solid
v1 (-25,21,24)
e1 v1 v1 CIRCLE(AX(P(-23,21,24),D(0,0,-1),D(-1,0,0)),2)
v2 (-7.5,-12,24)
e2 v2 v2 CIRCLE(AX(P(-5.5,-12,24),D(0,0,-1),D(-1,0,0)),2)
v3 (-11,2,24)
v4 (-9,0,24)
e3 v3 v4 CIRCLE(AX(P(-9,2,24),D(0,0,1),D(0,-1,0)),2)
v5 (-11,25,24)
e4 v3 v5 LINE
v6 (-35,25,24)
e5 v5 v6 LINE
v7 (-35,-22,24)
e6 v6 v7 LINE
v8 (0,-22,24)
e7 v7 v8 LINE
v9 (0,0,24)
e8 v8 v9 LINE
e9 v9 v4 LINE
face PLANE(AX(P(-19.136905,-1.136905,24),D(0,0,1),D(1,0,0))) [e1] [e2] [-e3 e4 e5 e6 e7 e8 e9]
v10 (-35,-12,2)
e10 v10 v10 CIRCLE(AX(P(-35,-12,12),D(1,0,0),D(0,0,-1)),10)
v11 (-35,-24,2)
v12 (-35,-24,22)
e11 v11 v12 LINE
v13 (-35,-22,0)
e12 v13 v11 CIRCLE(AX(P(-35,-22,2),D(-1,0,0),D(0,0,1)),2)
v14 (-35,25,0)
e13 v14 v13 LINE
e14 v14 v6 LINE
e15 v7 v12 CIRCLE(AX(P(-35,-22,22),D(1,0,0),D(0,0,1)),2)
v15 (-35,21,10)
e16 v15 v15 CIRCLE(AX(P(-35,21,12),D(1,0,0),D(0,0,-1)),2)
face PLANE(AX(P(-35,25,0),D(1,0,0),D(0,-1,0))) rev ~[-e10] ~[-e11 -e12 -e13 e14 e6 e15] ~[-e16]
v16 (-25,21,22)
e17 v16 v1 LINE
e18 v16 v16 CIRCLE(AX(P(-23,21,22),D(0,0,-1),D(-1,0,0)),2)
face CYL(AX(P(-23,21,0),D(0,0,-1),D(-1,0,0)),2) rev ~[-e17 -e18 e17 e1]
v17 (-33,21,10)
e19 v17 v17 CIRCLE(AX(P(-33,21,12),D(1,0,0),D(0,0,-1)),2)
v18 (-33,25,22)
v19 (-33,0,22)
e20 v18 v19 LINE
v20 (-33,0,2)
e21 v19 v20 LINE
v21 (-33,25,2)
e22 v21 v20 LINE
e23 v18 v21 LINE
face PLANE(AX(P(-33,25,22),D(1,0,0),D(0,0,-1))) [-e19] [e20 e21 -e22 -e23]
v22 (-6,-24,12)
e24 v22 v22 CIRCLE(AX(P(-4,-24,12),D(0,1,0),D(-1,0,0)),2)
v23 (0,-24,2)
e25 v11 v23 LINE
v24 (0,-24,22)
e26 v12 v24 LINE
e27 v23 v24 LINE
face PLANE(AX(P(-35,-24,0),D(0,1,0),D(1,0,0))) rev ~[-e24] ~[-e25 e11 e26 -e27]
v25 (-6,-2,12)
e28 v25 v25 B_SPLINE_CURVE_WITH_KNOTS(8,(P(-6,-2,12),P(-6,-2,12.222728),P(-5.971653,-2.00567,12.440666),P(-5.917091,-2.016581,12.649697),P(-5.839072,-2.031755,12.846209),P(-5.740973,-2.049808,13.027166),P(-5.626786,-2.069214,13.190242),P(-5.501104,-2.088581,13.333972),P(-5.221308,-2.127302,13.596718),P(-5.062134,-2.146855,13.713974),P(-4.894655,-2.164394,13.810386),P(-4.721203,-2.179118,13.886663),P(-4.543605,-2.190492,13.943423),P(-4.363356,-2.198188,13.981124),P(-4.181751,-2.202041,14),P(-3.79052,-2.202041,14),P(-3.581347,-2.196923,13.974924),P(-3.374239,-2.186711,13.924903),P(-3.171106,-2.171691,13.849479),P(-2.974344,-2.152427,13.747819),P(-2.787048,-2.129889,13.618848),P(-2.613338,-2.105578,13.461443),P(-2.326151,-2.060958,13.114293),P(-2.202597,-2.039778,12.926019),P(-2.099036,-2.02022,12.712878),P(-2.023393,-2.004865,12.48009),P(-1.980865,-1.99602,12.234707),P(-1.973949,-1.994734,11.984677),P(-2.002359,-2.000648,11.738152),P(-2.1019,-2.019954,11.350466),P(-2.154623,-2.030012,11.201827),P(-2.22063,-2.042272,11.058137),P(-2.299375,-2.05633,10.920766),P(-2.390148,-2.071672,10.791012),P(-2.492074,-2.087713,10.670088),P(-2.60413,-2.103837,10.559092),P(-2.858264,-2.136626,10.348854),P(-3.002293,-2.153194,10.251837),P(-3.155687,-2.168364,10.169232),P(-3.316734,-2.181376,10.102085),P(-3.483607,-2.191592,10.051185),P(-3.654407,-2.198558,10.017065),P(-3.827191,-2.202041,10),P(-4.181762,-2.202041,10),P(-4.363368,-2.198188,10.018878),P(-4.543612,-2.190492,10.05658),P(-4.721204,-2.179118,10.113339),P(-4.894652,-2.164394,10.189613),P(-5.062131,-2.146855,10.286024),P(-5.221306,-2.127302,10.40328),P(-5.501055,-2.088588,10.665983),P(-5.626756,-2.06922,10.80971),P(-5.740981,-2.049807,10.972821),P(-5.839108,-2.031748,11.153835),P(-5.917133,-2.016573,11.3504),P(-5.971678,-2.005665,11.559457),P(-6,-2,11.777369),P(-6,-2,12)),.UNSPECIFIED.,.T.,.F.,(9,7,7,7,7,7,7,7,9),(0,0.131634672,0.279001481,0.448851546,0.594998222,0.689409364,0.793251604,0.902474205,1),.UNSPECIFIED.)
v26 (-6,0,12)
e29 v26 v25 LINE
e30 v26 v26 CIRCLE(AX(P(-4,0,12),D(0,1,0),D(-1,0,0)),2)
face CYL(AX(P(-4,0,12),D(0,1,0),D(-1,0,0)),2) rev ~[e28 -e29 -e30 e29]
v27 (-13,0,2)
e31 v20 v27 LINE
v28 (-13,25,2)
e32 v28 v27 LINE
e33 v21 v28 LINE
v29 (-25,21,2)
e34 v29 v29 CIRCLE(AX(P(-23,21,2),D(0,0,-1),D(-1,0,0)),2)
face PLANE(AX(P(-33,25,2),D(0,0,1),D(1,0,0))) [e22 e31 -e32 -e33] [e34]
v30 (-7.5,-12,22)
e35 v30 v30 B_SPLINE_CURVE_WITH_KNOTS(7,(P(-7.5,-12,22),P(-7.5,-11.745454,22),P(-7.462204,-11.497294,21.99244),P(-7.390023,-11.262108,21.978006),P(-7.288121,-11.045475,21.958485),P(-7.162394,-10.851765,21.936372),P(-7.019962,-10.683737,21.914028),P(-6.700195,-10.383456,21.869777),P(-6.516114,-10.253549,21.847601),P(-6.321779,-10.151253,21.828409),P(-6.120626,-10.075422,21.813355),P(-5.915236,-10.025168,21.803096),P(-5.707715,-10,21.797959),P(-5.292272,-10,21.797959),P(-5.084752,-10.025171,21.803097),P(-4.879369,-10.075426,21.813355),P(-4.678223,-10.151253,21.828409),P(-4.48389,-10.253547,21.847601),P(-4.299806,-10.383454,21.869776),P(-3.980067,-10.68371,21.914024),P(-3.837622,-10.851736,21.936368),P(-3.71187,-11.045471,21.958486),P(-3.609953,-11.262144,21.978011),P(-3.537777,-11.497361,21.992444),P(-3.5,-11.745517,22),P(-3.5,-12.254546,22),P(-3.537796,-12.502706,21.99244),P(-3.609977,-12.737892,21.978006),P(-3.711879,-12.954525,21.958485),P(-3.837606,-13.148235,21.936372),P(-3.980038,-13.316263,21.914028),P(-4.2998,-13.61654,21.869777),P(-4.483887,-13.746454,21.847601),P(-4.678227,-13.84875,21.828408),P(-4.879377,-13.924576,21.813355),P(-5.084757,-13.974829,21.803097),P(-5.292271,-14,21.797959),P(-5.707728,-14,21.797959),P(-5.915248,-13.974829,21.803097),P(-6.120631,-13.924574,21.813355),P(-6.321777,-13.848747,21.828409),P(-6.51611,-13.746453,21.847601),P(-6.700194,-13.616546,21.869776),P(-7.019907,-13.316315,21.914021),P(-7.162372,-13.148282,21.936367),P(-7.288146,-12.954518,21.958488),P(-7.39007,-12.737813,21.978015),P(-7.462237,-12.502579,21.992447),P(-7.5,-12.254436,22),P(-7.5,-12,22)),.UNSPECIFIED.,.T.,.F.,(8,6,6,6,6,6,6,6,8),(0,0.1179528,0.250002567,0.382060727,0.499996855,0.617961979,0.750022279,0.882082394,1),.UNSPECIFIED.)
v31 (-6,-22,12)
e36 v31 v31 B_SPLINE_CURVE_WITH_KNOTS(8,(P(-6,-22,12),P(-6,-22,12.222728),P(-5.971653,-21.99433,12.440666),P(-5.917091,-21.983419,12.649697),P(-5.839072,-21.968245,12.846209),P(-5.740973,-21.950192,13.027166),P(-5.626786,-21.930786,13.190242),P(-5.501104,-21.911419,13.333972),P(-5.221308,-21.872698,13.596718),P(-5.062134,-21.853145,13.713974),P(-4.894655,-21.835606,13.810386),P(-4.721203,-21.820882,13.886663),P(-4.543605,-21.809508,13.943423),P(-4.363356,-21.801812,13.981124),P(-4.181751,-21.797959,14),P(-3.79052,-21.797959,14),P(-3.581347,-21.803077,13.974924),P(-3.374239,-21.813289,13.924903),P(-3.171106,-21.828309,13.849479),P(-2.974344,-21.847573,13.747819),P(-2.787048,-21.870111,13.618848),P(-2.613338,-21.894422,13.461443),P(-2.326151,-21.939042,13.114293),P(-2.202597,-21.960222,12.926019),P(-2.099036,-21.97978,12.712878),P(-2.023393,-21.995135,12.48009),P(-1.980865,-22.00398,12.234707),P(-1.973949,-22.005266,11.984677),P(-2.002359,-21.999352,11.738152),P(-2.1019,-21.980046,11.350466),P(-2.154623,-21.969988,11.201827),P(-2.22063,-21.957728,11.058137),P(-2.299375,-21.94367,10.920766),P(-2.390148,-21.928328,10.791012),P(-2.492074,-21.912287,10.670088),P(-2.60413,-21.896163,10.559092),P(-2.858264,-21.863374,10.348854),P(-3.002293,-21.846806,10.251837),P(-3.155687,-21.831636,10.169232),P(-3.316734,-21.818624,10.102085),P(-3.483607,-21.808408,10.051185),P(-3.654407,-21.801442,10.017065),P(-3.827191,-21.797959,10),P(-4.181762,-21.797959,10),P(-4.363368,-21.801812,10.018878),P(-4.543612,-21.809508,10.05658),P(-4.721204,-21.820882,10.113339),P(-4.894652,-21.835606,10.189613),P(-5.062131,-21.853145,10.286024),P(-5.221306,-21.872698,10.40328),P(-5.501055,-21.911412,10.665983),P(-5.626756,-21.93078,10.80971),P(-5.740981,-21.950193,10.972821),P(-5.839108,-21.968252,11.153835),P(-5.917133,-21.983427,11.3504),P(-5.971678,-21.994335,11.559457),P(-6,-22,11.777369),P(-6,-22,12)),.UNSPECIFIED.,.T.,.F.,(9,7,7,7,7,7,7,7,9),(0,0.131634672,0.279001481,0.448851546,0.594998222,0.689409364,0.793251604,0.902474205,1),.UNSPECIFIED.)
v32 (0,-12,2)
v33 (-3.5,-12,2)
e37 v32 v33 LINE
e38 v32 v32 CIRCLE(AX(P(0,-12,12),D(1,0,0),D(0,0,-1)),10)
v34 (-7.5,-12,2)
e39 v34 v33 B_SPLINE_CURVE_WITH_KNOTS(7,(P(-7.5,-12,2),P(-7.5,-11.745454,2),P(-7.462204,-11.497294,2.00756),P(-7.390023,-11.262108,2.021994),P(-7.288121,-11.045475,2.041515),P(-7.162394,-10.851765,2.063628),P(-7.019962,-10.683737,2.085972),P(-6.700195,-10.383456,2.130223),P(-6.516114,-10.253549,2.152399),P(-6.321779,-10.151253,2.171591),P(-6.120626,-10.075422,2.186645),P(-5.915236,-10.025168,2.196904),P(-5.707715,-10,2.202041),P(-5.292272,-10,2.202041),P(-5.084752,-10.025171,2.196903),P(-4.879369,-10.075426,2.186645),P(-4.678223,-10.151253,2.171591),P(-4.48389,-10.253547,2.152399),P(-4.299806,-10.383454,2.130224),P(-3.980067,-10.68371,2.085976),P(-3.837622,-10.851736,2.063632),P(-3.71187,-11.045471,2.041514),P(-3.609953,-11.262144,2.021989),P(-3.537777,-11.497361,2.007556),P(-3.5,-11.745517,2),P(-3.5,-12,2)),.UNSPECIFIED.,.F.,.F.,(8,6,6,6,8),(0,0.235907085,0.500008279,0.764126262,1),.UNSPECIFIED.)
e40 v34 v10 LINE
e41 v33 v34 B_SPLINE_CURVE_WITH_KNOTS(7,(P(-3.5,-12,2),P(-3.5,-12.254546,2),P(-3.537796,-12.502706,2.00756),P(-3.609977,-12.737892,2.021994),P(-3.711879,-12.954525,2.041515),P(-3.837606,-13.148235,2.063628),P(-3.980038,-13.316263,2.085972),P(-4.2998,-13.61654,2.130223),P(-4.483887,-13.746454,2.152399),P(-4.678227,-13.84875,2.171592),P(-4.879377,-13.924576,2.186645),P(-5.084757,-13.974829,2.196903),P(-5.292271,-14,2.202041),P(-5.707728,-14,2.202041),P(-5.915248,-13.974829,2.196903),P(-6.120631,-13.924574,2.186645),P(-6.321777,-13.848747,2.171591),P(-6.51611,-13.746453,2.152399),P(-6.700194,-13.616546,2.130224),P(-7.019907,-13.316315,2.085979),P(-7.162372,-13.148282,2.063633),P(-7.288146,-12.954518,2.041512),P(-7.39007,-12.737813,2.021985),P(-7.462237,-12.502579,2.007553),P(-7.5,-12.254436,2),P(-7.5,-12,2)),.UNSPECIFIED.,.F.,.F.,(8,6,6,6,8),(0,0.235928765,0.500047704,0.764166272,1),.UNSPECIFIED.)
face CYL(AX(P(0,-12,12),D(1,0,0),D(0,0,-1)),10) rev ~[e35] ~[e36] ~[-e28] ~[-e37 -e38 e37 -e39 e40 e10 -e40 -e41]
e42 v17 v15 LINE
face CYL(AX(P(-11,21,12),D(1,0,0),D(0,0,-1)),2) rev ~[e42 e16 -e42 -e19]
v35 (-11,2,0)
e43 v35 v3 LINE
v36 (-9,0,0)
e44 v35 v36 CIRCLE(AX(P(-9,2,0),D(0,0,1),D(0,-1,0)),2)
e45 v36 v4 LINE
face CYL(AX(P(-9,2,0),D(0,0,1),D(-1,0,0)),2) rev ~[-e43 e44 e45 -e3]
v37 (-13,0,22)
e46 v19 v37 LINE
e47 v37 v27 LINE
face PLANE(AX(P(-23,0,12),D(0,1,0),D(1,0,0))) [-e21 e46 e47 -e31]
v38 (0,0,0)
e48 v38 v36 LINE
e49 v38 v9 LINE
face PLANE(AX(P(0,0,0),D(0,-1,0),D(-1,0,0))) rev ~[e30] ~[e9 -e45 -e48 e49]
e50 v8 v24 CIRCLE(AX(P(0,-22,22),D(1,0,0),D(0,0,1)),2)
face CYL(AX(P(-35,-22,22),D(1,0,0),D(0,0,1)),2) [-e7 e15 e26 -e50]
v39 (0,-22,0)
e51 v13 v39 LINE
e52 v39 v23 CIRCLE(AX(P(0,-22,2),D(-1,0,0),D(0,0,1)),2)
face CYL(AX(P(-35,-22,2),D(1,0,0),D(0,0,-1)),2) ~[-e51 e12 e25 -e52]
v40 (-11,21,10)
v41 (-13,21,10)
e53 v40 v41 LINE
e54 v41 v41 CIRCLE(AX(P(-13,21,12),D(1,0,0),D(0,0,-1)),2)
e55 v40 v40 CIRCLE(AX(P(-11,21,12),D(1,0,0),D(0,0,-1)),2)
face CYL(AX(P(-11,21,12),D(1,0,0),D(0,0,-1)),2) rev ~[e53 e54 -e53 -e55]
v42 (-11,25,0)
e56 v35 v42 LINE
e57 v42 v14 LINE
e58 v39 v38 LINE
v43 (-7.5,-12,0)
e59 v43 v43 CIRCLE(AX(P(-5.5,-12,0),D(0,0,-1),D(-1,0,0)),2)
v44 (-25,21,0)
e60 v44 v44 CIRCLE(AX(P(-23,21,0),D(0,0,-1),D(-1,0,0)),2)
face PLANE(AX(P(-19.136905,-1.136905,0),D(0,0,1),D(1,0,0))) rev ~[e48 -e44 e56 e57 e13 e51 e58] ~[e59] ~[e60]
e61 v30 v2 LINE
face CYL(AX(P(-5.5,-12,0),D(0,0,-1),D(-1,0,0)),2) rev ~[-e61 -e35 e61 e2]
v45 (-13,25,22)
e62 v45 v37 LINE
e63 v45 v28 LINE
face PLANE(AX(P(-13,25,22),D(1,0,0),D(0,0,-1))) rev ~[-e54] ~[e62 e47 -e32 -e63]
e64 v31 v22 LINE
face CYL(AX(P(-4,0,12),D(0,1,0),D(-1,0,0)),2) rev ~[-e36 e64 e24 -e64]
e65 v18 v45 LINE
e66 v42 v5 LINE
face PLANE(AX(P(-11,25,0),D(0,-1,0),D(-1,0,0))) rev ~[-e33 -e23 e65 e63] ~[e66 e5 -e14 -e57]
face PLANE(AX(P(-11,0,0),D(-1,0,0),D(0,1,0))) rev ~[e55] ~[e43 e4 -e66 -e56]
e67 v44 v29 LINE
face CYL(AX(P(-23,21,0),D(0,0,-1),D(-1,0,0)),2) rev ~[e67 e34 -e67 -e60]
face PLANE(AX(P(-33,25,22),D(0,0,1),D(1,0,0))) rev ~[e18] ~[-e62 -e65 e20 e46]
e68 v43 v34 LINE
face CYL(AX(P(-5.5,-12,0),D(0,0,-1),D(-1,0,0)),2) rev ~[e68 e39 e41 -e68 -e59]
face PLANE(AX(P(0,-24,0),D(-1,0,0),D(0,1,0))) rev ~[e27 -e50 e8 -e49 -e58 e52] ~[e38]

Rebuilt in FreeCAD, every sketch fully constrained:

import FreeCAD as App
import Part
import Sketcher
from FreeCAD import Vector
Q = App.Units.Quantity


def edges_at(feature, points):
    """Names of the edges that pass closest to the given points."""
    edges = feature.Shape.Edges
    near = lambda p: min(range(len(edges)), key=lambda i: edges[i].distToShape(Part.Vertex(*p))[0])
    return sorted({f"Edge{near(p) + 1}" for p in points})


def add_polygon(sketch, points):
    """Adds a closed chain of lines whose ends are joined by coincident constraints."""
    first, n = sketch.GeometryCount, len(points)
    for a, b in zip(points, points[1:] + points[:1]):
        sketch.addGeometry(Part.LineSegment(App.Vector(*a, 0), App.Vector(*b, 0)), False)
    for i in range(n):
        sketch.addConstraint(Sketcher.Constraint("Coincident", first + i, 2, first + (i + 1) % n, 1))

doc = App.newDocument("Part")
body = doc.addObject("PartDesign::Body", "Body")

# Sketch on XY plane
sketch1 = body.newObject("Sketcher::SketchObject", "Sketch")
sketch1.AttachmentSupport = (doc.getObject("XY_Plane"), [""])
sketch1.MapMode = "FlatFace"
add_polygon(sketch1, [(-35, 25), (-35, -24), (0, -24), (0, 0), (-11, 0), (-11, 25)])  # lines 0-5
sketch1.addConstraint(Sketcher.Constraint("Vertical", 0))
sketch1.addConstraint(Sketcher.Constraint("Horizontal", 1))
sketch1.addConstraint(Sketcher.Constraint("Vertical", 2))
sketch1.addConstraint(Sketcher.Constraint("Horizontal", 3))
sketch1.addConstraint(Sketcher.Constraint("Vertical", 4))
sketch1.addConstraint(Sketcher.Constraint("Horizontal", 5))
sketch1.addConstraint(Sketcher.Constraint("Coincident", 2, 2, -1, 1))
sketch1.addConstraint(Sketcher.Constraint("Equal", 5, 2))
sketch1.addConstraint(Sketcher.Constraint("DistanceX", 1, 1, 1, 2, Q("35 mm")))
sketch1.addConstraint(Sketcher.Constraint("DistanceX", 3, 2, 3, 1, Q("11 mm")))
sketch1.addConstraint(Sketcher.Constraint("DistanceY", 0, 2, 0, 1, Q("49 mm")))
pad1 = body.newObject("PartDesign::Pad", "Pad")
pad1.Profile = sketch1
pad1.Length = 24

# Sketch on XZ plane
sketch2 = body.newObject("Sketcher::SketchObject", "Sketch001")
sketch2.AttachmentSupport = (doc.getObject("XZ_Plane"), [""])
sketch2.MapMode = "FlatFace"
sketch2.AttachmentOffset = App.Placement(Vector(0, 0, -25), App.Rotation())
add_polygon(sketch2, [(-33, 2), (-33, 22), (-13, 22), (-13, 2)])  # lines 0-3
sketch2.addConstraint(Sketcher.Constraint("Vertical", 0))
sketch2.addConstraint(Sketcher.Constraint("Horizontal", 1))
sketch2.addConstraint(Sketcher.Constraint("Vertical", 2))
sketch2.addConstraint(Sketcher.Constraint("Horizontal", 3))
sketch2.addConstraint(Sketcher.Constraint("Equal", 3, 0))
sketch2.addConstraint(Sketcher.Constraint("DistanceX", 1, 1, 1, 2, Q("20 mm")))
sketch2.addConstraint(Sketcher.Constraint("DistanceX", 0, 2, -1, 1, Q("33 mm")))
sketch2.addConstraint(Sketcher.Constraint("DistanceY", -1, 1, 0, 2, Q("22 mm")))
pocket1 = body.newObject("PartDesign::Pocket", "Pocket")
pocket1.Profile = sketch2
pocket1.Length = 25
pocket1.Reversed = True

# Sketch on YZ plane
sketch3 = body.newObject("Sketcher::SketchObject", "Sketch002")
sketch3.AttachmentSupport = (doc.getObject("YZ_Plane"), [""])
sketch3.MapMode = "FlatFace"
sketch3.addGeometry(Part.Circle(Vector(-12, 12, 0), Vector(0, 0, 1), 10), False)
sketch3.addConstraint(Sketcher.Constraint("Diameter", 0, Q("20 mm")))
sketch3.addConstraint(Sketcher.Constraint("DistanceX", 0, 3, -1, 1, Q("12 mm")))
sketch3.addConstraint(Sketcher.Constraint("DistanceY", -1, 1, 0, 3, Q("12 mm")))
pocket2 = body.newObject("PartDesign::Pocket", "Pocket001")
pocket2.Profile = sketch3
pocket2.Type = "ThroughAll"

# Sketch on YZ plane
sketch4 = body.newObject("Sketcher::SketchObject", "Sketch003")
sketch4.AttachmentSupport = (doc.getObject("YZ_Plane"), [""])
sketch4.MapMode = "FlatFace"
sketch4.AttachmentOffset = App.Placement(Vector(0, 0, -11), App.Rotation())
sketch4.addGeometry(Part.Circle(Vector(21, 12, 0), Vector(0, 0, 1), 2), False)
sketch4.addConstraint(Sketcher.Constraint("Diameter", 0, Q("4 mm")))
sketch4.addConstraint(Sketcher.Constraint("DistanceX", -1, 1, 0, 3, Q("21 mm")))
sketch4.addConstraint(Sketcher.Constraint("DistanceY", -1, 1, 0, 3, Q("12 mm")))
pocket3 = body.newObject("PartDesign::Pocket", "Pocket002")
pocket3.Profile = sketch4
pocket3.Length = 25

# Sketch on XY plane
sketch5 = body.newObject("Sketcher::SketchObject", "Sketch004")
sketch5.AttachmentSupport = (doc.getObject("XY_Plane"), [""])
sketch5.MapMode = "FlatFace"
sketch5.addGeometry(Part.Circle(Vector(-23, 21, 0), Vector(0, 0, 1), 2), False)
sketch5.addConstraint(Sketcher.Constraint("Diameter", 0, Q("4 mm")))
sketch5.addConstraint(Sketcher.Constraint("DistanceX", 0, 3, -1, 1, Q("23 mm")))
sketch5.addConstraint(Sketcher.Constraint("DistanceY", -1, 1, 0, 3, Q("21 mm")))
pocket4 = body.newObject("PartDesign::Pocket", "Pocket003")
pocket4.Profile = sketch5
pocket4.Length = 25
pocket4.Reversed = True

# Sketch on XZ plane
sketch6 = body.newObject("Sketcher::SketchObject", "Sketch005")
sketch6.AttachmentSupport = (doc.getObject("XZ_Plane"), [""])
sketch6.MapMode = "FlatFace"
sketch6.addGeometry(Part.Circle(Vector(-4, 12, 0), Vector(0, 0, 1), 2), False)
sketch6.addConstraint(Sketcher.Constraint("Diameter", 0, Q("4 mm")))
sketch6.addConstraint(Sketcher.Constraint("DistanceX", 0, 3, -1, 1, Q("4 mm")))
sketch6.addConstraint(Sketcher.Constraint("DistanceY", -1, 1, 0, 3, Q("12 mm")))
pocket5 = body.newObject("PartDesign::Pocket", "Pocket004")
pocket5.Profile = sketch6
pocket5.Length = 25
pocket5.Reversed = True

# Sketch on XY plane
sketch7 = body.newObject("Sketcher::SketchObject", "Sketch006")
sketch7.AttachmentSupport = (doc.getObject("XY_Plane"), [""])
sketch7.MapMode = "FlatFace"
sketch7.addGeometry(Part.Circle(Vector(-5.5, -12, 0), Vector(0, 0, 1), 2), False)
sketch7.addConstraint(Sketcher.Constraint("Diameter", 0, Q("4 mm")))
sketch7.addConstraint(Sketcher.Constraint("DistanceY", 0, 3, -1, 1, Q("12 mm")))
sketch7.addConstraint(Sketcher.Constraint("DistanceX", 0, 3, -1, 1, Q("5.5 mm")))
pocket6 = body.newObject("PartDesign::Pocket", "Pocket005")
pocket6.Profile = sketch7
pocket6.Length = 25
pocket6.Reversed = True
doc.recompute()

fillet = body.newObject("PartDesign::Fillet", "Fillet")
fillet.Base = (pocket6, edges_at(pocket6, [(-11, 0, 12), (-17.5, -24, 24), (-17.5, -24, 0)]))
fillet.Radius = 2

doc.recompute()
